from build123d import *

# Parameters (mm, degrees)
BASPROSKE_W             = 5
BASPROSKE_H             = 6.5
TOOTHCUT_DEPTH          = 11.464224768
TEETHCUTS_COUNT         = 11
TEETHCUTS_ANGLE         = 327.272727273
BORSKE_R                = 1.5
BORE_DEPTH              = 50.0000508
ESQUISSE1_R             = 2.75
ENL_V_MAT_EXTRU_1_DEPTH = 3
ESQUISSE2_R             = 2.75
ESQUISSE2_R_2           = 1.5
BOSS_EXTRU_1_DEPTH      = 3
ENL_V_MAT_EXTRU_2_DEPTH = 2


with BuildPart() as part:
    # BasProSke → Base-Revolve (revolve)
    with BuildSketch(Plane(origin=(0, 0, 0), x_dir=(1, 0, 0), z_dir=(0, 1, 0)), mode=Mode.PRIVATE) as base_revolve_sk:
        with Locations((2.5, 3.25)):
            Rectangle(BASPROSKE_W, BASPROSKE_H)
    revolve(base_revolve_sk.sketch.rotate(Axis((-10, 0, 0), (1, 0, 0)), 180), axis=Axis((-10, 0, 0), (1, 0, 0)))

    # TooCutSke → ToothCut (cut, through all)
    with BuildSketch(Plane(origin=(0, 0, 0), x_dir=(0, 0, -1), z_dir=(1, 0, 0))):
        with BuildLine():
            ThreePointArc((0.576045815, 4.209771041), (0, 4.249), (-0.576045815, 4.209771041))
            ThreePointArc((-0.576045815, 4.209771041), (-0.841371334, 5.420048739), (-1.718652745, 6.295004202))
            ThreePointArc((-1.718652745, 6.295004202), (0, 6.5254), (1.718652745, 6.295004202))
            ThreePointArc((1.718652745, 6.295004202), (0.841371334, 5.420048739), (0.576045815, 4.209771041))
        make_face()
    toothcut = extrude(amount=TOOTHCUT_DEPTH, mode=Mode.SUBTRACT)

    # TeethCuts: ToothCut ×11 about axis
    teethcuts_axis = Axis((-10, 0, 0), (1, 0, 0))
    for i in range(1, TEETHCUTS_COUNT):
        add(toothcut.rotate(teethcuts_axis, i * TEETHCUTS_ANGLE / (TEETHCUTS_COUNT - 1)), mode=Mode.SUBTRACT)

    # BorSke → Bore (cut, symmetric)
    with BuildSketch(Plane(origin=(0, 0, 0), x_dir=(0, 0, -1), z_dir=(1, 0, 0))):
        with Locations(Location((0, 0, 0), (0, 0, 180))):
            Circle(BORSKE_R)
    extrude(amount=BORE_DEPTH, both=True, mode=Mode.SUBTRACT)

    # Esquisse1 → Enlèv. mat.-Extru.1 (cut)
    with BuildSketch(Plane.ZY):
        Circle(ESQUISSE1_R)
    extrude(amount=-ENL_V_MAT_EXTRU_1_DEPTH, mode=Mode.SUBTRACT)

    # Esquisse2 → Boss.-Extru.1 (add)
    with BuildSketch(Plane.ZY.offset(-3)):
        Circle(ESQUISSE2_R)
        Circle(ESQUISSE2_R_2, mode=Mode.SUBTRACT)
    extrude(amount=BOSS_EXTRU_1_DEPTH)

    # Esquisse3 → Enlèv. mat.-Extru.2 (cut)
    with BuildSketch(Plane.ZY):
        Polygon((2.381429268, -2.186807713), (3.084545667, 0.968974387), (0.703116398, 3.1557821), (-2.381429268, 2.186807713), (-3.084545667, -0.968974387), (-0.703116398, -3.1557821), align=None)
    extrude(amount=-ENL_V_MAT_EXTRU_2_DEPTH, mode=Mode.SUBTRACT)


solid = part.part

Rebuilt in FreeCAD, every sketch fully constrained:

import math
import FreeCAD as App
import Part
import Sketcher
Q = App.Units.Quantity


def add_polygon(sketch, points):
    """Adds a closed chain of lines whose ends are joined by coincident constraints."""
    first, n = sketch.GeometryCount, len(points)
    for a, b in zip(points, points[1:] + points[:1]):
        sketch.addGeometry(Part.LineSegment(App.Vector(*a, 0), App.Vector(*b, 0)), False)
    for i in range(n):
        sketch.addConstraint(Sketcher.Constraint("Coincident", first + i, 2, first + (i + 1) % n, 1))

doc = App.newDocument("Part")
body = doc.addObject("PartDesign::Body", "Body")

# Sketch on XZ plane
sketch1 = body.newObject("Sketcher::SketchObject", "Sketch")
sketch1.AttachmentSupport = (doc.getObject("XZ_Plane"), [""])
sketch1.MapMode = "FlatFace"
add_polygon(sketch1, [(0, -6), (0, 0), (5, 0), (5, -6)])  # lines 0-3
sketch1.addConstraint(Sketcher.Constraint("Vertical", 0))
sketch1.addConstraint(Sketcher.Constraint("Horizontal", 1))
sketch1.addConstraint(Sketcher.Constraint("Vertical", 2))
sketch1.addConstraint(Sketcher.Constraint("Horizontal", 3))
sketch1.addConstraint(Sketcher.Constraint("Coincident", 0, 2, -1, 1))
sketch1.addConstraint(Sketcher.Constraint("DistanceX", 1, 1, 1, 2, Q("5 mm")))
sketch1.addConstraint(Sketcher.Constraint("DistanceY", 0, 1, 0, 2, Q("6.5 mm")))
revolution = body.newObject("PartDesign::Revolution", "Revolution")
revolution.Profile = sketch1
revolution.ReferenceAxis = (sketch1, ["H_Axis"])
revolution.Angle = 360

# Sketch on YZ plane
sketch2 = body.newObject("Sketcher::SketchObject", "Sketch001")
sketch2.AttachmentSupport = (doc.getObject("YZ_Plane"), [""])
sketch2.MapMode = "FlatFace"
sketch2.addGeometry(Part.ArcOfCircle(Part.Circle(App.Vector(0, 0, 0), App.Vector(0, 0, 1), 4.2), math.radians(-7.79), math.radians(7.79)), False)
sketch2.addGeometry(Part.ArcOfCircle(Part.Circle(App.Vector(4.4, -2.8, 0), App.Vector(0, 0, 1), 2.2), math.radians(29), math.radians(94)), False)
sketch2.addGeometry(Part.ArcOfCircle(Part.Circle(App.Vector(0, 0, 0), App.Vector(0, 0, 1), 6.5), math.radians(-15), math.radians(15)), False)
sketch2.addGeometry(Part.ArcOfCircle(Part.Circle(App.Vector(4.4, 2.8, 0), App.Vector(0, 0, 1), 2.2), math.radians(-94), math.radians(-29)), False)
sketch2.addConstraint(Sketcher.Constraint("Coincident", 0, 1, 1, 2))
sketch2.addConstraint(Sketcher.Constraint("Coincident", 1, 1, 2, 1))
sketch2.addConstraint(Sketcher.Constraint("Coincident", 2, 2, 3, 2))
sketch2.addConstraint(Sketcher.Constraint("Coincident", 3, 1, 0, 2))
sketch2.addConstraint(Sketcher.Constraint("Coincident", 0, 3, -1, 1))
sketch2.addConstraint(Sketcher.Constraint("Coincident", 2, 3, -1, 1))
sketch2.addConstraint(Sketcher.Constraint("Equal", 1, 3))
sketch2.addConstraint(Sketcher.Constraint("Symmetric", 1, 3, 3, 3, -1))
sketch2.addConstraint(Sketcher.Constraint("Radius", 1, Q("2.2 mm")))
sketch2.addConstraint(Sketcher.Constraint("Radius", 0, Q("4.249 mm")))
sketch2.addConstraint(Sketcher.Constraint("Radius", 2, Q("6.5254 mm")))
sketch2.addConstraint(Sketcher.Constraint("DistanceY", 0, 1, 2, 2, Q("2.294699 mm")))
sketch2.addConstraint(Sketcher.Constraint("DistanceX", -1, 1, 0, 1, Q("4.209771 mm")))
pocket1 = body.newObject("PartDesign::Pocket", "Pocket")
pocket1.Profile = sketch2
pocket1.Type = "ThroughAll"
pocket1.Reversed = True
doc.recompute()

polarpattern = body.newObject("PartDesign::PolarPattern", "PolarPattern")
polarpattern.Originals = [pocket1]
polarpattern.Axis = (doc.getObject("X_Axis"), [""])
polarpattern.Angle = 360
polarpattern.Occurrences = 11
body.Tip = polarpattern

# Sketch on YZ plane
sketch3 = body.newObject("Sketcher::SketchObject", "Sketch002")
sketch3.AttachmentSupport = (doc.getObject("YZ_Plane"), [""])
sketch3.MapMode = "FlatFace"
sketch3.addGeometry(Part.Circle(App.Vector(0, 0, 0), App.Vector(0, 0, 1), 1.5), False)
sketch3.addConstraint(Sketcher.Constraint("Coincident", 0, 3, -1, 1))
sketch3.addConstraint(Sketcher.Constraint("Diameter", 0, Q("3 mm")))
pocket2 = body.newObject("PartDesign::Pocket", "Pocket001")
pocket2.Profile = sketch3
pocket2.Length = 100.000102
pocket2.Midplane = True

# Sketch on YZ plane
sketch4 = body.newObject("Sketcher::SketchObject", "Sketch003")
sketch4.AttachmentSupport = (doc.getObject("YZ_Plane"), [""])
sketch4.MapMode = "FlatFace"
sketch4.addGeometry(Part.Circle(App.Vector(0, 0, 0), App.Vector(0, 0, 1), 2.8), False)
sketch4.addConstraint(Sketcher.Constraint("Coincident", 0, 3, -1, 1))
sketch4.addConstraint(Sketcher.Constraint("Diameter", 0, Q("5.5 mm")))
pocket3 = body.newObject("PartDesign::Pocket", "Pocket002")
pocket3.Profile = sketch4
pocket3.Length = 3
pocket3.Reversed = True

# Sketch on YZ plane
sketch5 = body.newObject("Sketcher::SketchObject", "Sketch004")
sketch5.AttachmentSupport = (doc.getObject("YZ_Plane"), [""])
sketch5.MapMode = "FlatFace"
sketch5.AttachmentOffset = App.Placement(App.Vector(0, 0, 3), App.Rotation())
sketch5.addGeometry(Part.Circle(App.Vector(0, 0, 0), App.Vector(0, 0, 1), 2.8), False)
sketch5.addGeometry(Part.Circle(App.Vector(0, 0, 0), App.Vector(0, 0, 1), 1.5), False)
sketch5.addConstraint(Sketcher.Constraint("Coincident", 0, 3, -1, 1))
sketch5.addConstraint(Sketcher.Constraint("Coincident", 1, 3, -1, 1))
sketch5.addConstraint(Sketcher.Constraint("Diameter", 1, Q("3 mm")))
sketch5.addConstraint(Sketcher.Constraint("Diameter", 0, Q("5.5 mm")))
pad1 = body.newObject("PartDesign::Pad", "Pad")
pad1.Profile = sketch5
pad1.Length = 3
pad1.Reversed = True

# Sketch on YZ plane
sketch6 = body.newObject("Sketcher::SketchObject", "Sketch005")
sketch6.AttachmentSupport = (doc.getObject("YZ_Plane"), [""])
sketch6.MapMode = "FlatFace"
add_polygon(sketch6, [(-2.2, 2.4), (1, 3.1), (3.2, 0.7), (2.2, -2.4), (-1, -3.1), (-3.2, -0.7)])  # lines 0-5
sketch6.addConstraint(Sketcher.Constraint("Symmetric", 0, 2, 3, 2, -1, 1))
sketch6.addConstraint(Sketcher.Constraint("Symmetric", 1, 2, 4, 2, -1, 1))
sketch6.addConstraint(Sketcher.Constraint("Symmetric", 2, 2, 5, 2, -1, 1))
sketch6.addConstraint(Sketcher.Constraint("Equal", 0, 1))
sketch6.addConstraint(Sketcher.Constraint("Equal", 1, 2))
sketch6.addConstraint(Sketcher.Constraint("Distance", 0, Q("3.233162 mm")))
sketch6.addConstraint(Sketcher.Constraint("DistanceY", 2, 2, -1, 1, Q("2.381429 mm")))
sketch6.addConstraint(Sketcher.Constraint("DistanceY", 1, 2, 0, 2, Q("2.381429 mm")))
sketch6.addConstraint(Sketcher.Constraint("DistanceX", 3, 2, 0, 2, Q("1.937949 mm")))
pocket4 = body.newObject("PartDesign::Pocket", "Pocket003")
pocket4.Profile = sketch6
pocket4.Length = 2
pocket4.Reversed = True

doc.recompute()
